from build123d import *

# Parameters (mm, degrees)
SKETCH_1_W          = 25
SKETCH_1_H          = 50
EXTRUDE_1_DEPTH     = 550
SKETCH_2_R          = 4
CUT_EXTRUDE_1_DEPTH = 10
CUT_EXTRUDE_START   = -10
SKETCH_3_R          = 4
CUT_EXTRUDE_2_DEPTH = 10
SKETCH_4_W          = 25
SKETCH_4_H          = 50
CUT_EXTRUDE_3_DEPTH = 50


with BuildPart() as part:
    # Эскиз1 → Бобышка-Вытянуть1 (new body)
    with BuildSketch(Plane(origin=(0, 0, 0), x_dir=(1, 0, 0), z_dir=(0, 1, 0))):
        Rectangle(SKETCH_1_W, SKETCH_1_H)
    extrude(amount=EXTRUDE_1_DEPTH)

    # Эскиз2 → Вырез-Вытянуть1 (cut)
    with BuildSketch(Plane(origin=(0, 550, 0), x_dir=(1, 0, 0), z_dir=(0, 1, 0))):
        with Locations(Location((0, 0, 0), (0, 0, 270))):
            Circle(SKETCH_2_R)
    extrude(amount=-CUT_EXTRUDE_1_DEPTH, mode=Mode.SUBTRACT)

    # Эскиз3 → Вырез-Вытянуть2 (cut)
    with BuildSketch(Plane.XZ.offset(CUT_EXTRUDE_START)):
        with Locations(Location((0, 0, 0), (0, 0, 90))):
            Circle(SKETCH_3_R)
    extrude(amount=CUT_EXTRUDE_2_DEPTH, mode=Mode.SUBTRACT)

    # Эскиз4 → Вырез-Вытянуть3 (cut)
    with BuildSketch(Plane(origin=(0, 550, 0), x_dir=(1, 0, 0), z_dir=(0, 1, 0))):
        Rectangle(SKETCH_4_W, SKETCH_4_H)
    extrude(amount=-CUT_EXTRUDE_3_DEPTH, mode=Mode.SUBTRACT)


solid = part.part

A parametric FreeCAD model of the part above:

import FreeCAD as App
import Part
import Sketcher
Q = App.Units.Quantity

doc = App.newDocument("Part")
params = doc.addObject("Spreadsheet::Sheet", "Params")
for row, (alias, value) in enumerate([
    ("sketch1_width", "25 mm"),
    ("sketch1_height", "50 mm"),
    ("pad1_length", "550 mm"),
    ("sketch2_diameter", "8 mm"),
    ("pocket1_length", "10 mm"),
    ("sketch3_diameter", "8 mm"),
    ("pocket2_length", "10 mm"),
    ("sketch4_width", "25 mm"),
    ("sketch4_height", "50 mm"),
    ("pocket3_length", "50 mm"),
], start=1):
    params.set(f"A{row}", alias)
    params.set(f"B{row}", "=" + value)
    params.setAlias(f"B{row}", alias)

body = doc.addObject("PartDesign::Body", "Body")

sketch1 = doc.addObject("Sketcher::SketchObject", "Sketch")
body.addObject(sketch1)
sketch1.AttachmentSupport = (doc.XZ_Plane, [""])
sketch1.MapMode = "FlatFace"
sketch1.addGeometry([
    Part.LineSegment(App.Vector(-12.5, -25, 0), App.Vector(-12.5, 25, 0)),
    Part.LineSegment(App.Vector(-12.5, 25, 0), App.Vector(12.5, 25, 0)),
    Part.LineSegment(App.Vector(12.5, 25, 0), App.Vector(12.5, -25, 0)),
    Part.LineSegment(App.Vector(12.5, -25, 0), App.Vector(-12.5, -25, 0)),
], False)
sketch1.addConstraint([
    Sketcher.Constraint("Coincident", 0, 2, 1, 1),
    Sketcher.Constraint("Coincident", 1, 2, 2, 1),
    Sketcher.Constraint("Coincident", 2, 2, 3, 1),
    Sketcher.Constraint("Coincident", 3, 2, 0, 1),
    Sketcher.Constraint("Vertical", 0),
    Sketcher.Constraint("Horizontal", 1),
    Sketcher.Constraint("Vertical", 2),
    Sketcher.Constraint("Horizontal", 3),
    Sketcher.Constraint("Symmetric", 0, 2, 2, 2, -1, 1),
    Sketcher.Constraint("DistanceX", 1, 1, 1, 2, Q("25 mm")),
    Sketcher.Constraint("DistanceY", 0, 1, 0, 2, Q("50 mm")),
])
sketch1.setExpression("Constraints[9]", "Params.sketch1_width")
sketch1.setExpression("Constraints[10]", "Params.sketch1_height")
pad1 = doc.addObject("PartDesign::Pad", "Pad")
body.addObject(pad1)
pad1.Profile = sketch1
pad1.setExpression("Length", "Params.pad1_length")
pad1.Reversed = True

sketch2 = doc.addObject("Sketcher::SketchObject", "Sketch001")
body.addObject(sketch2)
sketch2.AttachmentSupport = (doc.XZ_Plane, [""])
sketch2.MapMode = "FlatFace"
sketch2.AttachmentOffset = App.Placement(App.Vector(0, 0, -550), App.Rotation())
sketch2.addGeometry(Part.Circle(App.Vector(0, 0, 0), App.Vector(0, 0, 1), 4), False)
sketch2.addConstraint([
    Sketcher.Constraint("Coincident", 0, 3, -1, 1),
    Sketcher.Constraint("Diameter", 0, Q("8 mm")),
])
sketch2.setExpression("Constraints[1]", "Params.sketch2_diameter")
pocket1 = doc.addObject("PartDesign::Pocket", "Pocket")
body.addObject(pocket1)
pocket1.Profile = sketch2
pocket1.setExpression("Length", "Params.pocket1_length")
pocket1.Reversed = True

sketch3 = doc.addObject("Sketcher::SketchObject", "Sketch002")
body.addObject(sketch3)
sketch3.AttachmentSupport = (doc.XZ_Plane, [""])
sketch3.MapMode = "FlatFace"
sketch3.AttachmentOffset = App.Placement(App.Vector(0, 0, -10), App.Rotation())
sketch3.addGeometry(Part.Circle(App.Vector(0, 0, 0), App.Vector(0, 0, 1), 4), False)
sketch3.addConstraint([
    Sketcher.Constraint("Coincident", 0, 3, -1, 1),
    Sketcher.Constraint("Diameter", 0, Q("8 mm")),
])
sketch3.setExpression("Constraints[1]", "Params.sketch3_diameter")
pocket2 = doc.addObject("PartDesign::Pocket", "Pocket001")
body.addObject(pocket2)
pocket2.Profile = sketch3
pocket2.setExpression("Length", "Params.pocket2_length")
pocket2.Reversed = True

sketch4 = doc.addObject("Sketcher::SketchObject", "Sketch003")
body.addObject(sketch4)
sketch4.AttachmentSupport = (doc.XZ_Plane, [""])
sketch4.MapMode = "FlatFace"
sketch4.AttachmentOffset = App.Placement(App.Vector(0, 0, -550), App.Rotation())
sketch4.addGeometry([
    Part.LineSegment(App.Vector(-12.5, -25, 0), App.Vector(-12.5, 25, 0)),
    Part.LineSegment(App.Vector(-12.5, 25, 0), App.Vector(12.5, 25, 0)),
    Part.LineSegment(App.Vector(12.5, 25, 0), App.Vector(12.5, -25, 0)),
    Part.LineSegment(App.Vector(12.5, -25, 0), App.Vector(-12.5, -25, 0)),
], False)
sketch4.addConstraint([
    Sketcher.Constraint("Coincident", 0, 2, 1, 1),
    Sketcher.Constraint("Coincident", 1, 2, 2, 1),
    Sketcher.Constraint("Coincident", 2, 2, 3, 1),
    Sketcher.Constraint("Coincident", 3, 2, 0, 1),
    Sketcher.Constraint("Vertical", 0),
    Sketcher.Constraint("Horizontal", 1),
    Sketcher.Constraint("Vertical", 2),
    Sketcher.Constraint("Horizontal", 3),
    Sketcher.Constraint("Symmetric", 0, 2, 2, 2, -1, 1),
    Sketcher.Constraint("DistanceX", 1, 1, 1, 2, Q("25 mm")),
    Sketcher.Constraint("DistanceY", 0, 1, 0, 2, Q("50 mm")),
])
sketch4.setExpression("Constraints[9]", "Params.sketch4_width")
sketch4.setExpression("Constraints[10]", "Params.sketch4_height")
pocket3 = doc.addObject("PartDesign::Pocket", "Pocket002")
body.addObject(pocket3)
pocket3.Profile = sketch4
pocket3.setExpression("Length", "Params.pocket3_length")
pocket3.Reversed = True

doc.recompute()
